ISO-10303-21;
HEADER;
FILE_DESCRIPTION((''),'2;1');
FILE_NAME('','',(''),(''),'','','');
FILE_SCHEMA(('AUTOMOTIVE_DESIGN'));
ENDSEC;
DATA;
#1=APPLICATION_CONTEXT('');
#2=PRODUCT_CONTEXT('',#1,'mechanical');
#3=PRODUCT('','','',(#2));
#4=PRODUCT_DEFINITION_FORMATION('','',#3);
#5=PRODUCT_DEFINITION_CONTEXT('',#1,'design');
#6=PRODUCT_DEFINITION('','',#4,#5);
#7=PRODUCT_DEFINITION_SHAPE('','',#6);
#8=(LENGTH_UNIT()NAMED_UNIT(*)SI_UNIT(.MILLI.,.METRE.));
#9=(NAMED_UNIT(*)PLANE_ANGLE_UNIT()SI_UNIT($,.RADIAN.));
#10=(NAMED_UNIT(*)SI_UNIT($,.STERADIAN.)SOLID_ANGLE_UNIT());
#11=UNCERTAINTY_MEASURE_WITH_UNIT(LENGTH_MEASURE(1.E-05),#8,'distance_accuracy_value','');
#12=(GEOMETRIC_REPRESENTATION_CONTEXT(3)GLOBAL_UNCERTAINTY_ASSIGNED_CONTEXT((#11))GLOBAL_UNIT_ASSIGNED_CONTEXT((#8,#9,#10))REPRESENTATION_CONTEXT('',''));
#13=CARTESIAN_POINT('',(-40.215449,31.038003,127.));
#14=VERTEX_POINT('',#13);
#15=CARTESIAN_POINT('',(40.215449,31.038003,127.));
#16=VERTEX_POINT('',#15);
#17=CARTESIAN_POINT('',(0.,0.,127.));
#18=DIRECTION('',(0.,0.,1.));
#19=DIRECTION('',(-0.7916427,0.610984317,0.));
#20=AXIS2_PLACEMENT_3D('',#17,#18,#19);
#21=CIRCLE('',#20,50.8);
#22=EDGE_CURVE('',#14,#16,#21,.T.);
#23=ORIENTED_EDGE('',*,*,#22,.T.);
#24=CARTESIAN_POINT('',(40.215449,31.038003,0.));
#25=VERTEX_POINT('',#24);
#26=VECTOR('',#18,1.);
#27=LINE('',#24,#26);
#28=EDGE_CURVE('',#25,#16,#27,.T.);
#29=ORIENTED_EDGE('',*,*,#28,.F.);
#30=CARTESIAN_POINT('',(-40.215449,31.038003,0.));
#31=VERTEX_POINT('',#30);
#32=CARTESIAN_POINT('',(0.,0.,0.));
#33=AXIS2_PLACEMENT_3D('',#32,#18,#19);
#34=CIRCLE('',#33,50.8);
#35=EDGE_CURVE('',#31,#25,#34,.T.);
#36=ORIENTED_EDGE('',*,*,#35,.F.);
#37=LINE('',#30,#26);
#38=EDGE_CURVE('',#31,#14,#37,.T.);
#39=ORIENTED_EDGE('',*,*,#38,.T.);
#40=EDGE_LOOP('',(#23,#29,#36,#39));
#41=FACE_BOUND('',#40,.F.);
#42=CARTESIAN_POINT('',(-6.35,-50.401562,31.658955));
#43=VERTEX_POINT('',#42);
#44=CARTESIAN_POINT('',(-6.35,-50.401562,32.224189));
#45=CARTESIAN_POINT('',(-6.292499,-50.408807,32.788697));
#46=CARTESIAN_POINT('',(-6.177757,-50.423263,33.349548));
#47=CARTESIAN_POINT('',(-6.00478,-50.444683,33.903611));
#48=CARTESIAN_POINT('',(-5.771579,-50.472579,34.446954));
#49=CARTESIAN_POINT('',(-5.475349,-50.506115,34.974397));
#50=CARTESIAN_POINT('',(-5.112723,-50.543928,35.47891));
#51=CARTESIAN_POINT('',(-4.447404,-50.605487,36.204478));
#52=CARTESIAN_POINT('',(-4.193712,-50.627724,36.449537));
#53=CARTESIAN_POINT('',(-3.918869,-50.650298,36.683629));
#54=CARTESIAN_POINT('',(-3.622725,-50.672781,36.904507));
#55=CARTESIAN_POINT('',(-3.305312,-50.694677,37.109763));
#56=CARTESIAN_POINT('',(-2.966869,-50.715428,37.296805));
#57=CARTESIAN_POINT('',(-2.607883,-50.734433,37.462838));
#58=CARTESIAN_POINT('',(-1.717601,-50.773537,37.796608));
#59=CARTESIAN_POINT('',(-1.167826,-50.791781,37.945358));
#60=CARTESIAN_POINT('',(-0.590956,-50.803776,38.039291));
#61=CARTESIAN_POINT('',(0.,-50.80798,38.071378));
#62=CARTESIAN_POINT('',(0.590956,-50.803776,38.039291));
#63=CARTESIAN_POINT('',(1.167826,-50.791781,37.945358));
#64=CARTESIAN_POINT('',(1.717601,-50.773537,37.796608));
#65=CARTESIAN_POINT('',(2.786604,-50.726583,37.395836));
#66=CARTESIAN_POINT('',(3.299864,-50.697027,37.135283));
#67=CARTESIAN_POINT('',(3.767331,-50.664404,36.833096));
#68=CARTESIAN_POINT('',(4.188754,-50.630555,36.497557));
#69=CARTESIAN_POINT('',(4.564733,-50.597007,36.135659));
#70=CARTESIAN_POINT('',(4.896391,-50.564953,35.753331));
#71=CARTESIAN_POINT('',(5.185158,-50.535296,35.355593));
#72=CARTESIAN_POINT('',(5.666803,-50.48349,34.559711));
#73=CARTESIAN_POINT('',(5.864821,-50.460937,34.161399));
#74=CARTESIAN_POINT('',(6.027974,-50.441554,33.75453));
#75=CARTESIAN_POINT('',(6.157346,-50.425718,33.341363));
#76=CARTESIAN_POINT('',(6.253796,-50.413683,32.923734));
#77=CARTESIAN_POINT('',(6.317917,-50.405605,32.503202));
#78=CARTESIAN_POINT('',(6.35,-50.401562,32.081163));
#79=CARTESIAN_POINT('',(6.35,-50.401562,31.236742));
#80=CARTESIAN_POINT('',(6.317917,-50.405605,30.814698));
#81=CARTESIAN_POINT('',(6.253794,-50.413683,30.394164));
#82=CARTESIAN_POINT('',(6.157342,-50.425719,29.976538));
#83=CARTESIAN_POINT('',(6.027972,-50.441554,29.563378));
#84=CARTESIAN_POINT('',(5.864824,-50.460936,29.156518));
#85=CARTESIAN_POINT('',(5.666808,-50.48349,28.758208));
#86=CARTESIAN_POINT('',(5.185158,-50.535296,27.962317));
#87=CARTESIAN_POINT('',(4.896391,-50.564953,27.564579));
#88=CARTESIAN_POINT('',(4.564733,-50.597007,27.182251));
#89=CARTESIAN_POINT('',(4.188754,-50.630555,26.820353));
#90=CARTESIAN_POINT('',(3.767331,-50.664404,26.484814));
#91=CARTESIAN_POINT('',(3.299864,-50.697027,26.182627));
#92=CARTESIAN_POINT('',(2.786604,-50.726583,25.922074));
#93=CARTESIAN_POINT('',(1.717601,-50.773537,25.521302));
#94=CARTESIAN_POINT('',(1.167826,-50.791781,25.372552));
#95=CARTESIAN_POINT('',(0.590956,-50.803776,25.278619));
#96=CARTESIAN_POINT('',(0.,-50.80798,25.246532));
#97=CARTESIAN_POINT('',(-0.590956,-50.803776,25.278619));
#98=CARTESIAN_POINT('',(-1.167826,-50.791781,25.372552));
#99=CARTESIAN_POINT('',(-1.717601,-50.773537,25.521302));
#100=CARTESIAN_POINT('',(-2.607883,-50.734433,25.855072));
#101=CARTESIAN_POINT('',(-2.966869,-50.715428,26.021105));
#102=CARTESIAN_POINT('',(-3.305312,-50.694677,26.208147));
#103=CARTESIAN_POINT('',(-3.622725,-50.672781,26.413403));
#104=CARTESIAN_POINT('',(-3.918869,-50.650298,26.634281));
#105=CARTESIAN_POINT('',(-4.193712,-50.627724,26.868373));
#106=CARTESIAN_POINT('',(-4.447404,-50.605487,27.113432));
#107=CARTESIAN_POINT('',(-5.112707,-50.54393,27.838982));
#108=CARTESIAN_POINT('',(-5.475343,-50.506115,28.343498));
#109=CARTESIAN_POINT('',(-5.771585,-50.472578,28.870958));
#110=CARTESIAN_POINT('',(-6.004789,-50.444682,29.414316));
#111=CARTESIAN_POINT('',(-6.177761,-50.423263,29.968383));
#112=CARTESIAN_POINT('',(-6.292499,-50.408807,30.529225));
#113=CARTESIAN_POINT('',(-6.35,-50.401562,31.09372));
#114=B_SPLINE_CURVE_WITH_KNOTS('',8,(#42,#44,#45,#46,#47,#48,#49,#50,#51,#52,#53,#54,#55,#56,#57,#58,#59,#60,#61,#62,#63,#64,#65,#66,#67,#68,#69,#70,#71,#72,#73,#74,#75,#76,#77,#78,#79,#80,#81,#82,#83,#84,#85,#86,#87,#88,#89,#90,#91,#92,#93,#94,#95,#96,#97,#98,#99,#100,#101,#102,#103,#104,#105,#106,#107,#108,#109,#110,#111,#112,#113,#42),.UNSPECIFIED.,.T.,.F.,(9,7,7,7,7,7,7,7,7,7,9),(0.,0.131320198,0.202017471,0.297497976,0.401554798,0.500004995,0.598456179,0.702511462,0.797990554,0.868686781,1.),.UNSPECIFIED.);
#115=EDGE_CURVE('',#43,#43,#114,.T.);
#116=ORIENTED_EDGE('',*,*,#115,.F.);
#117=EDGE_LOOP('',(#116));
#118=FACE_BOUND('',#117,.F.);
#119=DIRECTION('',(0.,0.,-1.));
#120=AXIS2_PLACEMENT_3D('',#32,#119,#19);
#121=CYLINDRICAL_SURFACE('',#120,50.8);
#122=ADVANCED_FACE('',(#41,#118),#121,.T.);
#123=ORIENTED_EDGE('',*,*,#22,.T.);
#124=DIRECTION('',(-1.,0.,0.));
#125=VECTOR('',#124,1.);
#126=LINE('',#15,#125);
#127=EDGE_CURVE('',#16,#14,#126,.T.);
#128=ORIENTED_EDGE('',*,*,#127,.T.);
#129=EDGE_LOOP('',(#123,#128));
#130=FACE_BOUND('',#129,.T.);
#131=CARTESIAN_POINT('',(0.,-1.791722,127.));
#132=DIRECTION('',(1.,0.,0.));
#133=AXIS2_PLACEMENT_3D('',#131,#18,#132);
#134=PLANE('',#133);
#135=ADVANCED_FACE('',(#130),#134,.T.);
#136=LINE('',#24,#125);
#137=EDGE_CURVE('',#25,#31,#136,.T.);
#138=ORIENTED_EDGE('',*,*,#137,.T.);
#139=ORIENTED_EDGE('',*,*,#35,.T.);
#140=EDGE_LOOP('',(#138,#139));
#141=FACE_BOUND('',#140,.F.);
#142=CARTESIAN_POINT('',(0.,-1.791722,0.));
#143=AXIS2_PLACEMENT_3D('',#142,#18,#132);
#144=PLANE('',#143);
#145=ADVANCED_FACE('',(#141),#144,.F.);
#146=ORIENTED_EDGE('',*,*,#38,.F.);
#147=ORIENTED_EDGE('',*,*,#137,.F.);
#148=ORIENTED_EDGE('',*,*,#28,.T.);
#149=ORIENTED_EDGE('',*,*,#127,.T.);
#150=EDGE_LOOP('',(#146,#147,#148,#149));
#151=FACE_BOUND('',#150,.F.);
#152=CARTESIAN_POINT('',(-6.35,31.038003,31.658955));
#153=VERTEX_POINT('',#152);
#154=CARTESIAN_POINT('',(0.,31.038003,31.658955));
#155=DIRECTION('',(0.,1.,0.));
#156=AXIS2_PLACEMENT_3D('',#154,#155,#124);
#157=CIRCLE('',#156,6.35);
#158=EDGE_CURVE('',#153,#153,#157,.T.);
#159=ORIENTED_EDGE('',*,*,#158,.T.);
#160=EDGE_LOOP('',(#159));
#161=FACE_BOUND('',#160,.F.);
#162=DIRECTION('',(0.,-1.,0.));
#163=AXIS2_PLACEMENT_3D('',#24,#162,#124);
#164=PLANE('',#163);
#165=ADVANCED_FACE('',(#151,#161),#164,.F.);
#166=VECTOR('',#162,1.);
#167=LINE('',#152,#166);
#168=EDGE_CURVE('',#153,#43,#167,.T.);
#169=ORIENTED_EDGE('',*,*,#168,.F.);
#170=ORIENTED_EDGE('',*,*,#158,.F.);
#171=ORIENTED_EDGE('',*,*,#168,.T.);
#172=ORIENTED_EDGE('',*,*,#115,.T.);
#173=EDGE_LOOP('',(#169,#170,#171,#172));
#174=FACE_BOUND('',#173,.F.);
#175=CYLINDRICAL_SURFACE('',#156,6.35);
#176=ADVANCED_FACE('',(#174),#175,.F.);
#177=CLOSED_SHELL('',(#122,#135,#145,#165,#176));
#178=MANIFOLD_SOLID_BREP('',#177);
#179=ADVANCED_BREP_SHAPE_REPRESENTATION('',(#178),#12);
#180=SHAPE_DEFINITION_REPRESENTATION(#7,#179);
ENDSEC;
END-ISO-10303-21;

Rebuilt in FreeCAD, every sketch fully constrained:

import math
import FreeCAD as App
import Part
import Sketcher

V = App.Vector
Q = App.Units.Quantity

doc = App.newDocument("Part")
params = doc.addObject("Spreadsheet::Sheet", "Params")
for row, (alias, value) in enumerate([
    ("sketch1_radius", "2 in"),
    ("pad1_length", "5 in"),
    ("sketch2_diameter", "0.5 in"),
    ("pocket1_length", "5 in"),
], start=1):
    params.set(f"A{row}", alias)
    params.set(f"B{row}", "=" + value)
    params.setAlias(f"B{row}", alias)

body = doc.addObject("PartDesign::Body", "Body")

sketch1 = body.newObject("Sketcher::SketchObject", "Sketch")
sketch1.AttachmentSupport = (doc.getObject("XY_Plane"), [""])
sketch1.MapMode = "FlatFace"
sketch1.addGeometry(Part.LineSegment(V(40.215449, 31.038003, 0), V(-40.215449, 31.038003, 0)), False)
sketch1.addGeometry(Part.ArcOfCircle(Part.Circle(V(0, 0, 0), V(0, 0, 1), 50.8), math.radians(142.33929), math.radians(397.66071)), False)
sketch1.addConstraint(Sketcher.Constraint("Coincident", 0, 1, 1, 2))
sketch1.addConstraint(Sketcher.Constraint("Coincident", 1, 1, 0, 2))
sketch1.addConstraint(Sketcher.Constraint("Horizontal", 0))
sketch1.addConstraint(Sketcher.Constraint("Coincident", 1, 3, -1, 1))
sketch1.addConstraint(Sketcher.Constraint("Radius", 1, Q("2 in")))
sketch1.addConstraint(Sketcher.Constraint("DistanceX", 0, 2, 0, 1, Q("80.430898 mm")))
sketch1.setExpression("Constraints[4]", "Params.sketch1_radius")
pad1 = body.newObject("PartDesign::Pad", "Pad")
pad1.Profile = sketch1
pad1.setExpression("Length", "Params.pad1_length")

sketch2 = body.newObject("Sketcher::SketchObject", "Sketch001")
sketch2.AttachmentSupport = (doc.getObject("XZ_Plane"), [""])
sketch2.MapMode = "FlatFace"
sketch2.AttachmentOffset = App.Placement(V(0, 0, -31.038003), App.Rotation())
sketch2.addGeometry(Part.Circle(V(0, 31.658955, 0), V(0, 0, 1), 6.35), False)
sketch2.addConstraint(Sketcher.Constraint("PointOnObject", 0, 3, -2))
sketch2.addConstraint(Sketcher.Constraint("Diameter", 0, Q("0.5 in")))
sketch2.addConstraint(Sketcher.Constraint("DistanceY", -1, 1, 0, 3, Q("31.658955 mm")))
sketch2.setExpression("Constraints[1]", "Params.sketch2_diameter")
pocket1 = body.newObject("PartDesign::Pocket", "Pocket")
pocket1.Profile = sketch2
pocket1.setExpression("Length", "Params.pocket1_length")
pocket1.Reversed = True

doc.recompute()
